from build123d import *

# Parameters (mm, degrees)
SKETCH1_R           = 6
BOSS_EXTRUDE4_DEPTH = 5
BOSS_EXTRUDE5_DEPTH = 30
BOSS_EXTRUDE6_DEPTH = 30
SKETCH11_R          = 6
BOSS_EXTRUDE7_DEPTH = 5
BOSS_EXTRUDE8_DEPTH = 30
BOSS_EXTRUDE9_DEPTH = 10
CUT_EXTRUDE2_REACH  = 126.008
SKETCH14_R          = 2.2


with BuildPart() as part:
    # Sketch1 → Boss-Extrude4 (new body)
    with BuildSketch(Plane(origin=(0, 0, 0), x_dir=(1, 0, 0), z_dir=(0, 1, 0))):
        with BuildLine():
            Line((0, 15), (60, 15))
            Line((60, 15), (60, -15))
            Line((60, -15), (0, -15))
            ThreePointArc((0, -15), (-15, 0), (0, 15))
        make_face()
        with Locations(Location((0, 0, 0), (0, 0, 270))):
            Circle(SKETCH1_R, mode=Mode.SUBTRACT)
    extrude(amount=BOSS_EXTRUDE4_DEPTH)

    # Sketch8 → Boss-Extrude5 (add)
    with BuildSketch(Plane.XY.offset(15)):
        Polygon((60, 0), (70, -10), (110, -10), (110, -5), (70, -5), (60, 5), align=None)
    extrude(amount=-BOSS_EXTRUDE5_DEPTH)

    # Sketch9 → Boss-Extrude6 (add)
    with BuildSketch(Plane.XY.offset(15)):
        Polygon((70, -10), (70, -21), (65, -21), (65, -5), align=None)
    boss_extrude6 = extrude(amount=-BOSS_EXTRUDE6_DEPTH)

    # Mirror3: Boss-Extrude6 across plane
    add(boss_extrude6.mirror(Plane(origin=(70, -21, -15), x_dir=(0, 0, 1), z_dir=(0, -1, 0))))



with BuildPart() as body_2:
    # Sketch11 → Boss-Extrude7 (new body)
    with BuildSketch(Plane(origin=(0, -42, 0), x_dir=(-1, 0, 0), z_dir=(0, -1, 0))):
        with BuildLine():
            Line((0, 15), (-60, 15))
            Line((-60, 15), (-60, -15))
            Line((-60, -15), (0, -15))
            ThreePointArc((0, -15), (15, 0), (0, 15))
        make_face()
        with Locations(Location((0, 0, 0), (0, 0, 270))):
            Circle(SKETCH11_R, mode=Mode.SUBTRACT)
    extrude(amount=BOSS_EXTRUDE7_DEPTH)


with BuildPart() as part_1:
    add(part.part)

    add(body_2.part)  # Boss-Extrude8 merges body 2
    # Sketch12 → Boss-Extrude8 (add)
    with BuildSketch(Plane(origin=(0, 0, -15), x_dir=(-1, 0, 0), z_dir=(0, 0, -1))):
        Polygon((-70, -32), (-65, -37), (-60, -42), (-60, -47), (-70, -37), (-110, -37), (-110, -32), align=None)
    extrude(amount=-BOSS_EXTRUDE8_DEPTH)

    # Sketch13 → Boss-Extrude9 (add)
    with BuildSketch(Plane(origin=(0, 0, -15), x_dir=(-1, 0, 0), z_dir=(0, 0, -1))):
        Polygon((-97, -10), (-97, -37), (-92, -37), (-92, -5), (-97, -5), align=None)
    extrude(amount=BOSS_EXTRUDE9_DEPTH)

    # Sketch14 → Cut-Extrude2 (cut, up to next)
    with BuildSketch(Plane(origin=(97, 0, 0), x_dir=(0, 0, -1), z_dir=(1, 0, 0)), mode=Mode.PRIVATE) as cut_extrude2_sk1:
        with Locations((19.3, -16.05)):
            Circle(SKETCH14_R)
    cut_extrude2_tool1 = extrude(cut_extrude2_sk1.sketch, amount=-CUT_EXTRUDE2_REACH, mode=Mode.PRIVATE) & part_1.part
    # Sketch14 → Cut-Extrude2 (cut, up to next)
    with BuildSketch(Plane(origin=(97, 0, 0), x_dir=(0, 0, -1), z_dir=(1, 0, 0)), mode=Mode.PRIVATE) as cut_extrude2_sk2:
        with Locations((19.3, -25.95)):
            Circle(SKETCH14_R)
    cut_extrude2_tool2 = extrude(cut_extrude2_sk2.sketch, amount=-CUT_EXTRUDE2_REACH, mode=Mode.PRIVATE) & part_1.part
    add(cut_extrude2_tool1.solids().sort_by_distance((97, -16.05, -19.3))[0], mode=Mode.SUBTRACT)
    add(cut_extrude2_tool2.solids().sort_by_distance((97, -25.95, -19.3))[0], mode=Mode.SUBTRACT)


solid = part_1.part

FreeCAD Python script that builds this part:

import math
import FreeCAD as App
import Part
import Sketcher
Q = App.Units.Quantity


def add_polygon(sketch, points):
    """Adds a closed chain of lines whose ends are joined by coincident constraints."""
    first, n = sketch.GeometryCount, len(points)
    for a, b in zip(points, points[1:] + points[:1]):
        sketch.addGeometry(Part.LineSegment(App.Vector(*a, 0), App.Vector(*b, 0)), False)
    for i in range(n):
        sketch.addConstraint(Sketcher.Constraint("Coincident", first + i, 2, first + (i + 1) % n, 1))

doc = App.newDocument("Part")
params = doc.addObject("Spreadsheet::Sheet", "Params")
for row, (alias, value) in enumerate([
    ("sketch1_diameter", "12 mm"),
    ("sketch1_radius", "15 mm"),
    ("sketch1_width", "60 mm"),
    ("pad1_length", "5 mm"),
    ("sketch2_width", "40 mm"),
    ("sketch2_height", "5 mm"),
    ("pad2_length", "30 mm"),
    ("sketch3_width", "5 mm"),
    ("sketch3_height", "11 mm"),
    ("sketch3_height2", "16 mm"),
    ("pad3_length", "30 mm"),
    ("sketch4_diameter", "12 mm"),
    ("sketch4_radius", "15 mm"),
    ("sketch4_width", "60 mm"),
    ("pad4_length", "5 mm"),
    ("sketch5_width", "40 mm"),
    ("sketch5_height", "5 mm"),
    ("pad5_length", "30 mm"),
    ("sketch6_width", "5 mm"),
    ("sketch6_height", "32 mm"),
    ("pad6_length", "10 mm"),
    ("sketch7_diameter", "4.4 mm"),
    ("sketch8_diameter", "4.4 mm"),
], start=1):
    params.set(f"A{row}", alias)
    params.set(f"B{row}", "=" + value)
    params.setAlias(f"B{row}", alias)

body = doc.addObject("PartDesign::Body", "Body")

sketch1 = body.newObject("Sketcher::SketchObject", "Sketch")
sketch1.AttachmentSupport = (doc.getObject("XZ_Plane"), [""])
sketch1.MapMode = "FlatFace"
sketch1.addGeometry([
    Part.LineSegment(App.Vector(60, -15, 0), App.Vector(0, -15, 0)),
    Part.ArcOfCircle(Part.Circle(App.Vector(0, 0, 0), App.Vector(0, 0, 1), 15), math.radians(90), math.radians(270)),
    Part.LineSegment(App.Vector(0, 15, 0), App.Vector(60, 15, 0)),
    Part.LineSegment(App.Vector(60, 15, 0), App.Vector(60, -15, 0)),
    Part.Circle(App.Vector(0, 0, 0), App.Vector(0, 0, 1), 6),
], False)
sketch1.addConstraint([
    Sketcher.Constraint("Tangent", 0, 2, 1, 2),
    Sketcher.Constraint("Tangent", 1, 1, 2, 1),
    Sketcher.Constraint("Coincident", 2, 2, 3, 1),
    Sketcher.Constraint("Coincident", 3, 2, 0, 1),
    Sketcher.Constraint("Horizontal", 0),
    Sketcher.Constraint("Horizontal", 2),
    Sketcher.Constraint("Vertical", 3),
    Sketcher.Constraint("Coincident", 1, 3, -1, 1),
    Sketcher.Constraint("Coincident", 4, 3, -1, 1),
    Sketcher.Constraint("Diameter", 4, Q("12 mm")),
    Sketcher.Constraint("Radius", 1, Q("15 mm")),
    Sketcher.Constraint("DistanceX", 0, 2, 0, 1, Q("60 mm")),
])
sketch1.setExpression("Constraints[9]", "Params.sketch1_diameter")
sketch1.setExpression("Constraints[10]", "Params.sketch1_radius")
sketch1.setExpression("Constraints[11]", "Params.sketch1_width")
pad1 = body.newObject("PartDesign::Pad", "Pad")
pad1.Profile = sketch1
pad1.setExpression("Length", "Params.pad1_length")
pad1.Reversed = True

sketch2 = body.newObject("Sketcher::SketchObject", "Sketch001")
sketch2.AttachmentSupport = (doc.getObject("XY_Plane"), [""])
sketch2.MapMode = "FlatFace"
sketch2.AttachmentOffset = App.Placement(App.Vector(0, 0, 15), App.Rotation())
add_polygon(sketch2, [(60, 0), (70, -10), (110, -10), (110, -5), (70, -5), (60, 5)])
sketch2.addConstraint([
    Sketcher.Constraint("Horizontal", 1),
    Sketcher.Constraint("Vertical", 2),
    Sketcher.Constraint("Horizontal", 3),
    Sketcher.Constraint("Vertical", 5),
    Sketcher.Constraint("PointOnObject", 5, 2, -1),
    Sketcher.Constraint("Parallel", 0, 4),
    Sketcher.Constraint("Vertical", 0, 2, 3, 2),
    Sketcher.Constraint("DistanceX", 1, 1, 1, 2, Q("40 mm")),
    Sketcher.Constraint("DistanceY", 2, 1, 2, 2, Q("5 mm")),
    Sketcher.Constraint("Angle", 0, Q("-45 deg")),
    Sketcher.Constraint("DistanceX", -1, 1, 0, 2, Q("70 mm")),
    Sketcher.Constraint("DistanceY", 0, 2, -1, 1, Q("10 mm")),
])
sketch2.setExpression("Constraints[13]", "Params.sketch2_width")
sketch2.setExpression("Constraints[14]", "Params.sketch2_height")
pad2 = body.newObject("PartDesign::Pad", "Pad001")
pad2.Profile = sketch2
pad2.setExpression("Length", "Params.pad2_length")
pad2.Reversed = True

sketch3 = body.newObject("Sketcher::SketchObject", "Sketch002")
sketch3.AttachmentSupport = (doc.getObject("XY_Plane"), [""])
sketch3.MapMode = "FlatFace"
sketch3.AttachmentOffset = App.Placement(App.Vector(0, 0, 15), App.Rotation())
add_polygon(sketch3, [(70, -21), (70, -10), (65, -5), (65, -21)])
sketch3.addConstraint([
    Sketcher.Constraint("Vertical", 0),
    Sketcher.Constraint("Vertical", 2),
    Sketcher.Constraint("Horizontal", 3),
    Sketcher.Constraint("DistanceX", 3, 1, 3, 2, Q("5 mm")),
    Sketcher.Constraint("DistanceY", 0, 1, 0, 2, Q("11 mm")),
    Sketcher.Constraint("DistanceY", 2, 2, 2, 1, Q("16 mm")),
    Sketcher.Constraint("DistanceX", -1, 1, 0, 2, Q("70 mm")),
    Sketcher.Constraint("DistanceY", 0, 2, -1, 1, Q("10 mm")),
])
sketch3.setExpression("Constraints[7]", "Params.sketch3_width")
sketch3.setExpression("Constraints[8]", "Params.sketch3_height")
sketch3.setExpression("Constraints[9]", "Params.sketch3_height2")
pad3 = body.newObject("PartDesign::Pad", "Pad002")
pad3.Profile = sketch3
pad3.setExpression("Length", "Params.pad3_length")
pad3.Reversed = True
doc.recompute()

datumplane = body.newObject("PartDesign::Plane", "DatumPlane")
datumplane.AttachmentSupport = (doc.getObject("XZ_Plane"), [""])
datumplane.MapMode = "FlatFace"
datumplane.AttachmentOffset = App.Placement(App.Vector(0, 0, 21), App.Rotation())
mirrored = body.newObject("PartDesign::Mirrored", "Mirrored")
mirrored.Originals = [pad3]
mirrored.MirrorPlane = (datumplane, [""])
body.Tip = mirrored
body2 = doc.addObject("PartDesign::Body", "Body001")

sketch4 = body2.newObject("Sketcher::SketchObject", "Sketch003")
sketch4.AttachmentSupport = (doc.getObject("XZ_Plane001"), [""])
sketch4.MapMode = "FlatFace"
sketch4.AttachmentOffset = App.Placement(App.Vector(0, 0, 42), App.Rotation())
sketch4.addGeometry([
    Part.LineSegment(App.Vector(0, -15, 0), App.Vector(60, -15, 0)),
    Part.LineSegment(App.Vector(60, -15, 0), App.Vector(60, 15, 0)),
    Part.LineSegment(App.Vector(60, 15, 0), App.Vector(0, 15, 0)),
    Part.ArcOfCircle(Part.Circle(App.Vector(0, 0, 0), App.Vector(0, 0, 1), 15), math.radians(90), math.radians(270)),
    Part.Circle(App.Vector(0, 0, 0), App.Vector(0, 0, 1), 6),
], False)
sketch4.addConstraint([
    Sketcher.Constraint("Coincident", 0, 2, 1, 1),
    Sketcher.Constraint("Coincident", 1, 2, 2, 1),
    Sketcher.Constraint("Tangent", 2, 2, 3, 1),
    Sketcher.Constraint("Tangent", 3, 2, 0, 1),
    Sketcher.Constraint("Horizontal", 0),
    Sketcher.Constraint("Vertical", 1),
    Sketcher.Constraint("Horizontal", 2),
    Sketcher.Constraint("Coincident", 3, 3, -1, 1),
    Sketcher.Constraint("Coincident", 4, 3, -1, 1),
    Sketcher.Constraint("Diameter", 4, Q("12 mm")),
    Sketcher.Constraint("Radius", 3, Q("15 mm")),
    Sketcher.Constraint("DistanceX", 0, 1, 0, 2, Q("60 mm")),
])
sketch4.setExpression("Constraints[9]", "Params.sketch4_diameter")
sketch4.setExpression("Constraints[10]", "Params.sketch4_radius")
sketch4.setExpression("Constraints[11]", "Params.sketch4_width")
pad4 = body2.newObject("PartDesign::Pad", "Pad003")
pad4.Profile = sketch4
pad4.setExpression("Length", "Params.pad4_length")
body.AllowCompound = True
doc.recompute()

boolean = body.newObject("PartDesign::Boolean", "Boolean")
boolean.Type = "Fuse"
boolean.addObjects([body2])

sketch5 = body.newObject("Sketcher::SketchObject", "Sketch004")
sketch5.AttachmentSupport = (doc.getObject("XY_Plane"), [""])
sketch5.MapMode = "FlatFace"
sketch5.AttachmentOffset = App.Placement(App.Vector(0, 0, -15), App.Rotation())
add_polygon(sketch5, [(60, -42), (70, -32), (110, -32), (110, -37), (70, -37), (60, -47)])
sketch5.addConstraint([
    Sketcher.Constraint("Horizontal", 1),
    Sketcher.Constraint("Vertical", 2),
    Sketcher.Constraint("Horizontal", 3),
    Sketcher.Constraint("Vertical", 5),
    Sketcher.Constraint("Parallel", 0, 4),
    Sketcher.Constraint("Vertical", 0, 2, 3, 2),
    Sketcher.Constraint("DistanceX", 1, 1, 1, 2, Q("40 mm")),
    Sketcher.Constraint("DistanceY", 2, 2, 2, 1, Q("5 mm")),
    Sketcher.Constraint("Angle", 0, Q("45 deg")),
    Sketcher.Constraint("DistanceX", -1, 1, 0, 2, Q("70 mm")),
    Sketcher.Constraint("DistanceY", 0, 2, -1, 1, Q("32 mm")),
    Sketcher.Constraint("DistanceX", -1, 1, 4, 2, Q("60 mm")),
])
sketch5.setExpression("Constraints[12]", "Params.sketch5_width")
sketch5.setExpression("Constraints[13]", "Params.sketch5_height")
pad5 = body.newObject("PartDesign::Pad", "Pad004")
pad5.Profile = sketch5
pad5.setExpression("Length", "Params.pad5_length")

sketch6 = body.newObject("Sketcher::SketchObject", "Sketch005")
sketch6.AttachmentSupport = (doc.getObject("XY_Plane"), [""])
sketch6.MapMode = "FlatFace"
sketch6.AttachmentOffset = App.Placement(App.Vector(0, 0, -15), App.Rotation())
add_polygon(sketch6, [(97, -37), (92, -37), (92, -5), (97, -5)])
sketch6.addConstraint([
    Sketcher.Constraint("Horizontal", 0),
    Sketcher.Constraint("Vertical", 1),
    Sketcher.Constraint("Horizontal", 2),
    Sketcher.Constraint("Vertical", 3),
    Sketcher.Constraint("DistanceX", 0, 2, 0, 1, Q("5 mm")),
    Sketcher.Constraint("DistanceY", 1, 1, 1, 2, Q("32 mm")),
    Sketcher.Constraint("DistanceX", -1, 1, 0, 2, Q("92 mm")),
    Sketcher.Constraint("DistanceY", 0, 2, -1, 1, Q("37 mm")),
])
sketch6.setExpression("Constraints[8]", "Params.sketch6_width")
sketch6.setExpression("Constraints[9]", "Params.sketch6_height")
pad6 = body.newObject("PartDesign::Pad", "Pad005")
pad6.Profile = sketch6
pad6.setExpression("Length", "Params.pad6_length")
pad6.Reversed = True

sketch7 = body.newObject("Sketcher::SketchObject", "Sketch006")
sketch7.AttachmentSupport = (doc.getObject("YZ_Plane"), [""])
sketch7.MapMode = "FlatFace"
sketch7.AttachmentOffset = App.Placement(App.Vector(0, 0, 97), App.Rotation())
sketch7.addGeometry(Part.Circle(App.Vector(-16.1, -19.3, 0), App.Vector(0, 0, 1), 2.2), False)
sketch7.addConstraint([
    Sketcher.Constraint("Diameter", 0, Q("4.4 mm")),
    Sketcher.Constraint("DistanceY", 0, 3, -1, 1, Q("19.3 mm")),
    Sketcher.Constraint("DistanceX", 0, 3, -1, 1, Q("16.05 mm")),
])
sketch7.setExpression("Constraints[0]", "Params.sketch7_diameter")
pocket1 = body.newObject("PartDesign::Pocket", "Pocket")
pocket1.Profile = sketch7
pocket1.Type = "UpToFirst"

sketch8 = body.newObject("Sketcher::SketchObject", "Sketch007")
sketch8.AttachmentSupport = (doc.getObject("YZ_Plane"), [""])
sketch8.MapMode = "FlatFace"
sketch8.AttachmentOffset = App.Placement(App.Vector(0, 0, 97), App.Rotation())
sketch8.addGeometry(Part.Circle(App.Vector(-25.9, -19.3, 0), App.Vector(0, 0, 1), 2.2), False)
sketch8.addConstraint([
    Sketcher.Constraint("Diameter", 0, Q("4.4 mm")),
    Sketcher.Constraint("DistanceY", 0, 3, -1, 1, Q("19.3 mm")),
    Sketcher.Constraint("DistanceX", 0, 3, -1, 1, Q("25.95 mm")),
])
sketch8.setExpression("Constraints[0]", "Params.sketch8_diameter")
pocket2 = body.newObject("PartDesign::Pocket", "Pocket001")
pocket2.Profile = sketch8
pocket2.Type = "UpToFirst"

doc.recompute()
